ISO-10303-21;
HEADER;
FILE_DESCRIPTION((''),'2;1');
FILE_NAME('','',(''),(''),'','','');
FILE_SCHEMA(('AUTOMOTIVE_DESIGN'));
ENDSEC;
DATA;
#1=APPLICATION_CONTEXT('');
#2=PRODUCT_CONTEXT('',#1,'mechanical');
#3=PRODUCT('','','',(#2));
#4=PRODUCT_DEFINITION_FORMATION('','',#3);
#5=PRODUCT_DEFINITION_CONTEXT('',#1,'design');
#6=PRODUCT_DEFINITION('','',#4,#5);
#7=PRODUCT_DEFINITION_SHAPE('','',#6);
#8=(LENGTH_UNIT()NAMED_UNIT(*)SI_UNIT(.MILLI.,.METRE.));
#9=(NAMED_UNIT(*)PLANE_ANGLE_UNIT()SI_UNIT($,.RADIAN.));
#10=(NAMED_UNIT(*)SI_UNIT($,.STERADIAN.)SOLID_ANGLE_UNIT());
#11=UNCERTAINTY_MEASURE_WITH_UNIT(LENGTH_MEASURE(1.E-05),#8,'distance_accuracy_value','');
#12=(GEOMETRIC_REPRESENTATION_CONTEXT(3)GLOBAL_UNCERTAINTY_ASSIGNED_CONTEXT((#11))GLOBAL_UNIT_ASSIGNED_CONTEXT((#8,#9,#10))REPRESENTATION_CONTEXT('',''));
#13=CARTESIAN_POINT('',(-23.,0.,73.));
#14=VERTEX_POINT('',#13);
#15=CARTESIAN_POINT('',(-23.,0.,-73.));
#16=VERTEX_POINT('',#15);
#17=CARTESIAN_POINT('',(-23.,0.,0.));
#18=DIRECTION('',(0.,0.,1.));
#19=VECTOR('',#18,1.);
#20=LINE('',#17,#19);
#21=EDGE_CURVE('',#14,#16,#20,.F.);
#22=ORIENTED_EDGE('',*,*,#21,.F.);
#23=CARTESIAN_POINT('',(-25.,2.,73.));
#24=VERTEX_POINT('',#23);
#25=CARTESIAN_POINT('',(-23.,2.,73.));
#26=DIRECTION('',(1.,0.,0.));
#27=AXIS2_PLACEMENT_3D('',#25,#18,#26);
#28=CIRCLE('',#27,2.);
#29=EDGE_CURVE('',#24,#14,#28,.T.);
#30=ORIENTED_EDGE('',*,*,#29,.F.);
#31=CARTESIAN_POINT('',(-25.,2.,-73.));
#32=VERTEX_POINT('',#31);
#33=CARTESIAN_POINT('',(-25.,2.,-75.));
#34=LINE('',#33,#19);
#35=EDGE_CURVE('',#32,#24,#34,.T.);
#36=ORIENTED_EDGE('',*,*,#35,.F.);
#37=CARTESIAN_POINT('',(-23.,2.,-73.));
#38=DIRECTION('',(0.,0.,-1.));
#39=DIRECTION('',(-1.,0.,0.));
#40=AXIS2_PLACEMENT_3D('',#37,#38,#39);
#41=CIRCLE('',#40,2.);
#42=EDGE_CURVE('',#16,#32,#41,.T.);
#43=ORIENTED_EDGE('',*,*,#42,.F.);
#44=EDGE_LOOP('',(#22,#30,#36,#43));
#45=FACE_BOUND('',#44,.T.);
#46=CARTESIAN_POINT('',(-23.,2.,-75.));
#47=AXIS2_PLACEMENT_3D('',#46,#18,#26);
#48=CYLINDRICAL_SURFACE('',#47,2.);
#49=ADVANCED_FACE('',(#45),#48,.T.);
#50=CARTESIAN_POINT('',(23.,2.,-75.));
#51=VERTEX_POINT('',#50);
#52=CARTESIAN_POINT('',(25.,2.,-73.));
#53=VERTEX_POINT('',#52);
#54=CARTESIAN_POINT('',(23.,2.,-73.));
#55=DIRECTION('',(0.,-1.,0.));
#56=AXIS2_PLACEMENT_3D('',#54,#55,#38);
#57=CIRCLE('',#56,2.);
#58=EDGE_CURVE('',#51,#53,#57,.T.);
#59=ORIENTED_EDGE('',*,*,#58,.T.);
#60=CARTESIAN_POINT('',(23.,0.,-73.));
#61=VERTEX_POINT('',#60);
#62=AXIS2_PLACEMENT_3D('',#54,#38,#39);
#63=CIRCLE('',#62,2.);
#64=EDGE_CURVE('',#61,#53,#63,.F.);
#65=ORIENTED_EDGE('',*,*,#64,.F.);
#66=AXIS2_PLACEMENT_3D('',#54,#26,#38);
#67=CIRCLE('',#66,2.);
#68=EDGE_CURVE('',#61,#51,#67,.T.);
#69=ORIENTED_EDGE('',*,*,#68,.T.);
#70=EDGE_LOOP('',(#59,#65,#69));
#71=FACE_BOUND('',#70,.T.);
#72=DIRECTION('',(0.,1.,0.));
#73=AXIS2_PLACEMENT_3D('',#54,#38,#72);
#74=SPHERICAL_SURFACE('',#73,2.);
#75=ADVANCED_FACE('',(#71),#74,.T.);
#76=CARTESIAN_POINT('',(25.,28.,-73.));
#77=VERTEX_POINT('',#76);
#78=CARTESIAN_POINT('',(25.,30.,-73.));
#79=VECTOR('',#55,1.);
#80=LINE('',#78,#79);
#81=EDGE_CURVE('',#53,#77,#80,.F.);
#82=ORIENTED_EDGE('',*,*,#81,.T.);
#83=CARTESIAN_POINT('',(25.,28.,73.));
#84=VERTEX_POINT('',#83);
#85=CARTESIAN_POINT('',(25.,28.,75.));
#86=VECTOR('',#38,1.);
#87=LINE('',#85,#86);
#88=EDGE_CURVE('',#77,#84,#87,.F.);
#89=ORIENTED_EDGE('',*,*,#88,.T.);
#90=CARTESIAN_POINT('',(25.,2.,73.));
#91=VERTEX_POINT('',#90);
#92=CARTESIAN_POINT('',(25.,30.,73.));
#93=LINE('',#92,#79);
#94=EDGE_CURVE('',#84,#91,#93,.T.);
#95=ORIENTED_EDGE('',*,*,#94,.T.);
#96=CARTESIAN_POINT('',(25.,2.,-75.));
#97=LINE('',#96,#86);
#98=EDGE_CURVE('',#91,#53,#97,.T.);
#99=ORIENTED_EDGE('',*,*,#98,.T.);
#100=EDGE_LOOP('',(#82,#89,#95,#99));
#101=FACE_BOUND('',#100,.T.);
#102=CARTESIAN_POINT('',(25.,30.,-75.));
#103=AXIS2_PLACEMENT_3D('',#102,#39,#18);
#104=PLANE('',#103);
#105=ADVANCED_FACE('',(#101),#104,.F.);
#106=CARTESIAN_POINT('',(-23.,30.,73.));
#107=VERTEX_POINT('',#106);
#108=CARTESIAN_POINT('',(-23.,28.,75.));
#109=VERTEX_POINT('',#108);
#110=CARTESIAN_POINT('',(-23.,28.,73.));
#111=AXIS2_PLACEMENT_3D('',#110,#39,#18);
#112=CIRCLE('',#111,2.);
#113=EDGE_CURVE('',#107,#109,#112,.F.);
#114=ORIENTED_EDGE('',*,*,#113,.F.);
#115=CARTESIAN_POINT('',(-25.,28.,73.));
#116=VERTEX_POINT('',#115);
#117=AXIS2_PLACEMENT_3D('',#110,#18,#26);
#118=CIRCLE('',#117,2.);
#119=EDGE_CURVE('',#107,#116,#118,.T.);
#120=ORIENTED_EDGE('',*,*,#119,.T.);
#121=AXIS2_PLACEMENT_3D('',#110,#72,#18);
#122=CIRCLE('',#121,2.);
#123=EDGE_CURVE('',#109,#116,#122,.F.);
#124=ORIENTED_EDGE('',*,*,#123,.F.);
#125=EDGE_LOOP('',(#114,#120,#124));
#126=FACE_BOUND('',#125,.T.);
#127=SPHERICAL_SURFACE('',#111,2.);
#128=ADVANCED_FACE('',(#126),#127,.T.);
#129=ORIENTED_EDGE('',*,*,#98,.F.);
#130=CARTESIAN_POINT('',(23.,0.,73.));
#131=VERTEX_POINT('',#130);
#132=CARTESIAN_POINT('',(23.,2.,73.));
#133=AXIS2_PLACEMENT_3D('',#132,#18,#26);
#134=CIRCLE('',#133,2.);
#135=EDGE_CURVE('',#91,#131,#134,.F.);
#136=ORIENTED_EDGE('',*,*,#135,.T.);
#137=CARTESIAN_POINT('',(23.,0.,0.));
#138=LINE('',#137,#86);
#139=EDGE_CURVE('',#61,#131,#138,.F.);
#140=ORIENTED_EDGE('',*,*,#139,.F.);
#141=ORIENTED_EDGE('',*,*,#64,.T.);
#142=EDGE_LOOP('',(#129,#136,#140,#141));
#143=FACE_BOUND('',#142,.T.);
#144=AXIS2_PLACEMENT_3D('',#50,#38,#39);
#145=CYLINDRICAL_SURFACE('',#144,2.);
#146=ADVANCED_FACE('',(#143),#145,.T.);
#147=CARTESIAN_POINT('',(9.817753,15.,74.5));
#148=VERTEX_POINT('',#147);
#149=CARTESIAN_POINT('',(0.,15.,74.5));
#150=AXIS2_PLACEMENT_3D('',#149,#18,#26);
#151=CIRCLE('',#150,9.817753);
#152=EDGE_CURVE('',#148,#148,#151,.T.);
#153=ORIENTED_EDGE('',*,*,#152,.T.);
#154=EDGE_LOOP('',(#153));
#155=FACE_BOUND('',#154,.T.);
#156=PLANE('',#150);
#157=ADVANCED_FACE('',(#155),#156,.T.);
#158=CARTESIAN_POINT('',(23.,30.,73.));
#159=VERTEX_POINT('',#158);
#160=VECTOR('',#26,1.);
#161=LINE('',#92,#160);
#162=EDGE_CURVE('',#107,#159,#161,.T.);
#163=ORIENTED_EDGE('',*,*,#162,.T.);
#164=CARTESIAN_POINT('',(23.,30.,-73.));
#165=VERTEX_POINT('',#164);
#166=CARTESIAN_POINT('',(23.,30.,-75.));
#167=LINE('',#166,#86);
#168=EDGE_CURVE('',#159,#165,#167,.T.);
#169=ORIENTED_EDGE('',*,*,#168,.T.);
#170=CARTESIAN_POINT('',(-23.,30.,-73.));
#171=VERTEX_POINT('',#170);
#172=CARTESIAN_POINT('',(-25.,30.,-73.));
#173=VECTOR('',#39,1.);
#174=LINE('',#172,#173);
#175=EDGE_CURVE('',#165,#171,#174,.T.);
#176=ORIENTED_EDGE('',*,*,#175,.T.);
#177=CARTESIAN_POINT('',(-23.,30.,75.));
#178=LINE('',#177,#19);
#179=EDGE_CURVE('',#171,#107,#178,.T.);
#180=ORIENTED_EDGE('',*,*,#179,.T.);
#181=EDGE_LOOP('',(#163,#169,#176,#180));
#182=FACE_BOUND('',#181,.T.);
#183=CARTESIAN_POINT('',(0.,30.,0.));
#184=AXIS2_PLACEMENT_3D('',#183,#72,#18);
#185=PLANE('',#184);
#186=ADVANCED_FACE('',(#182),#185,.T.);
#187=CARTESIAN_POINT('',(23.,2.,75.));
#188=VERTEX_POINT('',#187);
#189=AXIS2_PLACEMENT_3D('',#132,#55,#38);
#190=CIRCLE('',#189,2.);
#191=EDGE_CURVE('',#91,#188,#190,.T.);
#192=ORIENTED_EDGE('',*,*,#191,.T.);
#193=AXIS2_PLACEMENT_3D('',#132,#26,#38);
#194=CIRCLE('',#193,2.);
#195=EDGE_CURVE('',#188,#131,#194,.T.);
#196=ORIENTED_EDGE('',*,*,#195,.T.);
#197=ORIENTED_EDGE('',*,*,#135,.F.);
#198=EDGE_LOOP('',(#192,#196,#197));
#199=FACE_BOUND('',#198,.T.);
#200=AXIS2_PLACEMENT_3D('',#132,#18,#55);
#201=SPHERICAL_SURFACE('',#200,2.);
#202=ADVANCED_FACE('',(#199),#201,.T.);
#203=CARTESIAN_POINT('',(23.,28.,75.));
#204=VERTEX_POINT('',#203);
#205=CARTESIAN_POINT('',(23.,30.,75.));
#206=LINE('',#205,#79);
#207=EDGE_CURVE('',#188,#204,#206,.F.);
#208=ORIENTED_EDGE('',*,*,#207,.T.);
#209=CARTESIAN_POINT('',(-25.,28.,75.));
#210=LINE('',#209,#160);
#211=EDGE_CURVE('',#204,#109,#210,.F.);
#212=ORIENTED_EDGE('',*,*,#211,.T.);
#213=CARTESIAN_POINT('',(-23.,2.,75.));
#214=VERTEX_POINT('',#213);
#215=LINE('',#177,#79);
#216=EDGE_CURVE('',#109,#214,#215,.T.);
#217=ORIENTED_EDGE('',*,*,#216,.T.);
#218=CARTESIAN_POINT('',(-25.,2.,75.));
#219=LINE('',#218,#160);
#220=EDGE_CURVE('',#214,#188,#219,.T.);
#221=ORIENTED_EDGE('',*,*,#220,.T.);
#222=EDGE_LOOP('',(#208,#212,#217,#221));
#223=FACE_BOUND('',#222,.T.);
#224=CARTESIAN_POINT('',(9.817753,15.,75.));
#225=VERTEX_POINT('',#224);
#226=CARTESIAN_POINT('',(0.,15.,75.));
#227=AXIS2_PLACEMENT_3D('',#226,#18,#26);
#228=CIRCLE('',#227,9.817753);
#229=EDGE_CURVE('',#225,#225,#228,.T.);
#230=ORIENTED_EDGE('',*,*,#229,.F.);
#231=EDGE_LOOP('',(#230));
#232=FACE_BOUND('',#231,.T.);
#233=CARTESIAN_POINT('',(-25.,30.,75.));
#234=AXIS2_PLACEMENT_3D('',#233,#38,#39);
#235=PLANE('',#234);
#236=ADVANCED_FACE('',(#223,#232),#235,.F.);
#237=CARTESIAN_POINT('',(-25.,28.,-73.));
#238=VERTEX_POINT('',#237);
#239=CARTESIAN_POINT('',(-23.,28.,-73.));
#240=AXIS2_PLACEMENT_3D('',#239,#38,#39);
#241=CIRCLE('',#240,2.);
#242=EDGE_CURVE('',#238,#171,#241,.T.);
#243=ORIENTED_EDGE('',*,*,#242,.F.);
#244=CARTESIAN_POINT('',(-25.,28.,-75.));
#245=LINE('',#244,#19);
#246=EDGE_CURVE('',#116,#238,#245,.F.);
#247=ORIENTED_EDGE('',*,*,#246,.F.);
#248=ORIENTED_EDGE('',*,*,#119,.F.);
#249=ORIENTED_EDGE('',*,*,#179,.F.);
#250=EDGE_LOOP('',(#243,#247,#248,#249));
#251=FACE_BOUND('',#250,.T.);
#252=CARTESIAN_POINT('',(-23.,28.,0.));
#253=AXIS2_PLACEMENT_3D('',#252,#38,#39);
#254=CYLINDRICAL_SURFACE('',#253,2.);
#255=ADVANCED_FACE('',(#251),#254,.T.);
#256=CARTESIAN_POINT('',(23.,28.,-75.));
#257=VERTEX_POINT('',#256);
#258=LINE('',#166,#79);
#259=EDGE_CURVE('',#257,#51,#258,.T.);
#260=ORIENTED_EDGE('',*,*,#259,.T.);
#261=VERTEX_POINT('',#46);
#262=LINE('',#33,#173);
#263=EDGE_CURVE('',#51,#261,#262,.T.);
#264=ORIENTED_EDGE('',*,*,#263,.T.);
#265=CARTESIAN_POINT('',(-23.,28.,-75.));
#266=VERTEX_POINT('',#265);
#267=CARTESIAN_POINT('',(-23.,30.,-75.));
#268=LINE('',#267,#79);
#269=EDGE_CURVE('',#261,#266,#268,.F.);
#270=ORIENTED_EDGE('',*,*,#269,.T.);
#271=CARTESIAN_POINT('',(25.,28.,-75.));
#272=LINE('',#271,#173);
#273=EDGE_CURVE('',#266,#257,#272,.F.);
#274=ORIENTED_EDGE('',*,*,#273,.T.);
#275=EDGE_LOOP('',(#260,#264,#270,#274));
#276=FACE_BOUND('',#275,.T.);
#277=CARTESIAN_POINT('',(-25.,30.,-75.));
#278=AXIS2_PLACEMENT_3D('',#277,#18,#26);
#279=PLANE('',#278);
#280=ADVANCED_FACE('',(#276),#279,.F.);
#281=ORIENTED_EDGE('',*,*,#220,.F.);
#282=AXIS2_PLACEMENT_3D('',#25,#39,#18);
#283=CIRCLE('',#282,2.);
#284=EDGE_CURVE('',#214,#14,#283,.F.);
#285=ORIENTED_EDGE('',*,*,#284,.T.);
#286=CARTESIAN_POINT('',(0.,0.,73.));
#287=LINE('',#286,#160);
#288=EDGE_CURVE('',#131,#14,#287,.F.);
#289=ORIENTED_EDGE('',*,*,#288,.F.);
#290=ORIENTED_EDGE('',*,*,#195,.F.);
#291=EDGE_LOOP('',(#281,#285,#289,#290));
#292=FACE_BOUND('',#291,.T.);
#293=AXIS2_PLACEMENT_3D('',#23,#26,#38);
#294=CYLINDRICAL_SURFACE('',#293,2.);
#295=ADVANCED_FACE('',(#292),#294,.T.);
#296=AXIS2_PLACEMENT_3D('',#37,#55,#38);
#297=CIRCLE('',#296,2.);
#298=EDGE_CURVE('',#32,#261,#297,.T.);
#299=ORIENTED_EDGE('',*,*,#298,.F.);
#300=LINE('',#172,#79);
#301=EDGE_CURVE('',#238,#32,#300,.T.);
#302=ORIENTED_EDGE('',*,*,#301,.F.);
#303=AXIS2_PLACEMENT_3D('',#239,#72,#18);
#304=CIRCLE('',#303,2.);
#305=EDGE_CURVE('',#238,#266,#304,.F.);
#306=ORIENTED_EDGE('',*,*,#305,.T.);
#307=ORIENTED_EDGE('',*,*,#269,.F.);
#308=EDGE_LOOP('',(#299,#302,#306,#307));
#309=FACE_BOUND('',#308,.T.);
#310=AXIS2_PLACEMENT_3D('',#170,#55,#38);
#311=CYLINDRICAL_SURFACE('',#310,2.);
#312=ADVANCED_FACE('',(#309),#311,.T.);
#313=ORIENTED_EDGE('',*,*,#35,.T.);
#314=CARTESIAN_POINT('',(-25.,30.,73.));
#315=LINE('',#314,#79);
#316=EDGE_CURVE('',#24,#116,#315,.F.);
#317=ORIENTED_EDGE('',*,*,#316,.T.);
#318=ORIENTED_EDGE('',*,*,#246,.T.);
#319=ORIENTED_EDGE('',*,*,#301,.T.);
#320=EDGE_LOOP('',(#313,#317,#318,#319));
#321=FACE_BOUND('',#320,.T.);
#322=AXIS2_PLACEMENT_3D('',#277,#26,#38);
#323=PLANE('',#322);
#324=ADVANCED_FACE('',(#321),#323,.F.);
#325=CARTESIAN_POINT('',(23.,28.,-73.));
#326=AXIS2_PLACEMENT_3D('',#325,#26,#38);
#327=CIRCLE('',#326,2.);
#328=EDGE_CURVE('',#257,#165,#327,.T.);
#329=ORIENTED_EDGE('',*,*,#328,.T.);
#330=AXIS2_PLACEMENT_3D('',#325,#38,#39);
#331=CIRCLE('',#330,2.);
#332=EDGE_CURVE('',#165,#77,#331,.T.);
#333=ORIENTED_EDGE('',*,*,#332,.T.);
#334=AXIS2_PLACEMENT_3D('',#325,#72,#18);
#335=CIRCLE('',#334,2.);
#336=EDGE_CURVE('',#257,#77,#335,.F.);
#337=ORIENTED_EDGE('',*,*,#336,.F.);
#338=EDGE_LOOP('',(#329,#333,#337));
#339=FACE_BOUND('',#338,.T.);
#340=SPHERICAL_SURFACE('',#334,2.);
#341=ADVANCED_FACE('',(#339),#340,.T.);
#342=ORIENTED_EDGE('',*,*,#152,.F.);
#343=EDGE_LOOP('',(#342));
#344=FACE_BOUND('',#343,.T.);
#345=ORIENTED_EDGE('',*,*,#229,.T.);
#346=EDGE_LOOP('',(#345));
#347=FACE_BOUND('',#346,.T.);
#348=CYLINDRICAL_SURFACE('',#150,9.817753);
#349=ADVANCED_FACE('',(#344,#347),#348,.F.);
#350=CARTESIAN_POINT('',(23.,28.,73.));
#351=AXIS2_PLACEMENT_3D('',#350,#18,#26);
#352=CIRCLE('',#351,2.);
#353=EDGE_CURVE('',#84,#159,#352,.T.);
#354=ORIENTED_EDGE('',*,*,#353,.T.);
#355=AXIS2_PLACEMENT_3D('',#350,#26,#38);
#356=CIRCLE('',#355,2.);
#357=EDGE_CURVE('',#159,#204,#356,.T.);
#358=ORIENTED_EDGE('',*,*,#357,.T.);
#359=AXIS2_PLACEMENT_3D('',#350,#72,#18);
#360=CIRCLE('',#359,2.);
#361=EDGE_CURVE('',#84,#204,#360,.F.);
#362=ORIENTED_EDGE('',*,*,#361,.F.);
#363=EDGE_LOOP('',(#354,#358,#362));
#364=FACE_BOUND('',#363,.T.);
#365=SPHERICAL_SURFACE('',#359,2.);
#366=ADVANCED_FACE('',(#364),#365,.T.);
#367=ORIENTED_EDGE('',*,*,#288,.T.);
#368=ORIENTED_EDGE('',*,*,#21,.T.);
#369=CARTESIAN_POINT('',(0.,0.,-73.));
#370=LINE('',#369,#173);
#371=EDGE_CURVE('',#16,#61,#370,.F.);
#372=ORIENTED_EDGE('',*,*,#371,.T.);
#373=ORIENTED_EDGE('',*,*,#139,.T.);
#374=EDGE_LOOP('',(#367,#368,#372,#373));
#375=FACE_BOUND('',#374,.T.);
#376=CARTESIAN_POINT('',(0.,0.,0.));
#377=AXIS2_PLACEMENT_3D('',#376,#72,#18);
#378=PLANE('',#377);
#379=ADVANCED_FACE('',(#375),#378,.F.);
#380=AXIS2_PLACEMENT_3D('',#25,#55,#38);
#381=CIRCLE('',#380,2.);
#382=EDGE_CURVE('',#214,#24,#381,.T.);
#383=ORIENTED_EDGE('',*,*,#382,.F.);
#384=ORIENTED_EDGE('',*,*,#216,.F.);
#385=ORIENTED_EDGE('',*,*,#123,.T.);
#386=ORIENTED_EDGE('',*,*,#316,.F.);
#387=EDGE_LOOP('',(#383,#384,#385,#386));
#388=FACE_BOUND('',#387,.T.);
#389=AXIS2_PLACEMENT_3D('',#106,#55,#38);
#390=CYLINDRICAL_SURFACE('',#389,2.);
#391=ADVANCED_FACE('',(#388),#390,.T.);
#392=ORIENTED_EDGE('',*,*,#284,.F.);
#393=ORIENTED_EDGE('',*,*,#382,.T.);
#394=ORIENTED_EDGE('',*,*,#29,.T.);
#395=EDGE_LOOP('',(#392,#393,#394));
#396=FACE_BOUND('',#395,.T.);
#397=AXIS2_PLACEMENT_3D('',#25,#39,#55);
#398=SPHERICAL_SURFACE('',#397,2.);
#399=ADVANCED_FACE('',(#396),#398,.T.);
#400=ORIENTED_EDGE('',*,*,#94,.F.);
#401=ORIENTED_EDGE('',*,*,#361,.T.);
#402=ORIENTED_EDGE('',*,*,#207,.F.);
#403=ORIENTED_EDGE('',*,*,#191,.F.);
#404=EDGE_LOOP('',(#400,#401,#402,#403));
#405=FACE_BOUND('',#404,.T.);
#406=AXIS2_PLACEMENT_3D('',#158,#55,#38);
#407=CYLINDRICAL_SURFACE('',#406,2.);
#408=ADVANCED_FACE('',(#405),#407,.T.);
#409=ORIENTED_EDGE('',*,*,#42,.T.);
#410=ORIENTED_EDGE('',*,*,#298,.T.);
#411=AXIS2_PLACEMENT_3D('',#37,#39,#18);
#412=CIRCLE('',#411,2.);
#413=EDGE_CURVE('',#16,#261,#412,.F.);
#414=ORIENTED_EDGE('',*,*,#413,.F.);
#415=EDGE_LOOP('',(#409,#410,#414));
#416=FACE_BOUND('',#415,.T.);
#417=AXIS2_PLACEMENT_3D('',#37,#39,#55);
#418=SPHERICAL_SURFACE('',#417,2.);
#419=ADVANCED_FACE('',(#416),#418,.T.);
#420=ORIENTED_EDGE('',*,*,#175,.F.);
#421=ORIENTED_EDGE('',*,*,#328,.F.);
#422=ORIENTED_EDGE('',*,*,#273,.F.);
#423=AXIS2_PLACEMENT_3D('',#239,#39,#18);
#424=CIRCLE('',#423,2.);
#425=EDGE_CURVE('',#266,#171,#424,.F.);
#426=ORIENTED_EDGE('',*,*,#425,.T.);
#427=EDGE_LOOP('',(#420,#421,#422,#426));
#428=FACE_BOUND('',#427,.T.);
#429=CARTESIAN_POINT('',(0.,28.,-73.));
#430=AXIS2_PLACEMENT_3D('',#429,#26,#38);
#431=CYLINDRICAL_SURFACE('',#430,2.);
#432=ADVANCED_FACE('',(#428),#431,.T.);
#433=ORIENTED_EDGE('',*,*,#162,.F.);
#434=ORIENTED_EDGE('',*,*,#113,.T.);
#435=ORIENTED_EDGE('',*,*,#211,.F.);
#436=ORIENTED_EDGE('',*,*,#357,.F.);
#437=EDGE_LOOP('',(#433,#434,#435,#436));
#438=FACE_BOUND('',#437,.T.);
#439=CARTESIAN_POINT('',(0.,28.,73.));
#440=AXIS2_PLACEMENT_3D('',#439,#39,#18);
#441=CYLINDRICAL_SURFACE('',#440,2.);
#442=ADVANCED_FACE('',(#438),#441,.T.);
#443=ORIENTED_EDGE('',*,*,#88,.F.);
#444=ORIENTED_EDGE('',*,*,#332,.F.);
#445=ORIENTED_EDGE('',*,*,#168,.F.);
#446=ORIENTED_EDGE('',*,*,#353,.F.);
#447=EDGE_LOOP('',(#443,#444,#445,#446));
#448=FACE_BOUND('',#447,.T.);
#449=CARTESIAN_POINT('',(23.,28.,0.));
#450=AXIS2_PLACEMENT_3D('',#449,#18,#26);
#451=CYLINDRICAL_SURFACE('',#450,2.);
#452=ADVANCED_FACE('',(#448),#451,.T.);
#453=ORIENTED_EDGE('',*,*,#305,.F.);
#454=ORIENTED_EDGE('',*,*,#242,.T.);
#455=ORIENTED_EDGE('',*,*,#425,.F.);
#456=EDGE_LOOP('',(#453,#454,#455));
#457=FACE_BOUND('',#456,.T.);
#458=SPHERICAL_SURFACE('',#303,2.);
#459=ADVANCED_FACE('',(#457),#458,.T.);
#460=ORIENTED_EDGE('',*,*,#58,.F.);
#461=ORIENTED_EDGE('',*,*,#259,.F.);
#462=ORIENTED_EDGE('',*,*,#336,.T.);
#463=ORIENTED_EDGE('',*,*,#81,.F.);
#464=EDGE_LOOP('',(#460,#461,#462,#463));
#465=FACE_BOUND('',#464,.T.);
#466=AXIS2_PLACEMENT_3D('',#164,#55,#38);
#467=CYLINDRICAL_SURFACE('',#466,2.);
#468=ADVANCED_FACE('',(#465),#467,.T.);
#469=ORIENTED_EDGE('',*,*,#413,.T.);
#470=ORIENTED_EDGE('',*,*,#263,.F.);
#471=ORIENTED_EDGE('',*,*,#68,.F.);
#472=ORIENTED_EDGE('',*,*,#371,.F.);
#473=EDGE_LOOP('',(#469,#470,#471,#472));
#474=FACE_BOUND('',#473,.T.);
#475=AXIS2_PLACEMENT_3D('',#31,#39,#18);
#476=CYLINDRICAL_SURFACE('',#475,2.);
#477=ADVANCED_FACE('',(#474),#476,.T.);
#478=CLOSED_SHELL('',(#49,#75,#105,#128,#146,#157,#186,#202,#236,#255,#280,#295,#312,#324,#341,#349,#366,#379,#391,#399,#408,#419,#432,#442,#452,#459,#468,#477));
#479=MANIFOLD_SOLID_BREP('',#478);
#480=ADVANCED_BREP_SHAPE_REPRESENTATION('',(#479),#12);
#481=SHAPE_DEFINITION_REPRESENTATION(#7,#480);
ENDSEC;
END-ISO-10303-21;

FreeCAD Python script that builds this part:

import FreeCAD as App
import Part
import Sketcher
from FreeCAD import Vector


def add_polygon(sketch, points):
    """Adds a closed chain of lines whose ends are joined by coincident constraints."""
    first, n = sketch.GeometryCount, len(points)
    for a, b in zip(points, points[1:] + points[:1]):
        sketch.addGeometry(Part.LineSegment(App.Vector(*a, 0), App.Vector(*b, 0)), False)
    for i in range(n):
        sketch.addConstraint(Sketcher.Constraint("Coincident", first + i, 2, first + (i + 1) % n, 1))

doc = App.newDocument("Part")
body = doc.addObject("PartDesign::Body", "Body")

sketch1 = body.newObject("Sketcher::SketchObject", "Sketch")
sketch1.AttachmentSupport = (doc.getObject("XZ_Plane"), [""])
sketch1.MapMode = "FlatFace"
add_polygon(sketch1, [(-25, -75), (-25, 75), (25, 75), (25, -75)])
sketch1.addConstraint([
    Sketcher.Constraint("Vertical", 0),
    Sketcher.Constraint("Horizontal", 1),
    Sketcher.Constraint("Vertical", 2),
    Sketcher.Constraint("Horizontal", 3),
    Sketcher.Constraint("Symmetric", 0, 2, 2, 2, -1, 1),
    Sketcher.Constraint("DistanceX", 1, 1, 1, 2, 50.0),
    Sketcher.Constraint("DistanceY", 0, 1, 0, 2, 150.0),
])
pad1 = body.newObject("PartDesign::Pad", "Pad")
pad1.Profile = sketch1
pad1.Length = 30
pad1.Reversed = True
doc.recompute()

fillet = body.newObject("PartDesign::Fillet", "Fillet")
fillet.Base = (pad1, ["Edge1"])
fillet.UseAllEdges = True
fillet.Radius = 2

sketch2 = body.newObject("Sketcher::SketchObject", "Sketch001")
sketch2.AttachmentSupport = (doc.getObject("XY_Plane"), [""])
sketch2.MapMode = "FlatFace"
sketch2.AttachmentOffset = App.Placement(Vector(0, 0, 75), App.Rotation())
sketch2.addGeometry(Part.Circle(Vector(0, 15, 0), Vector(0, 0, 1), 9.817753), False)
sketch2.addConstraint([
    Sketcher.Constraint("PointOnObject", 0, 3, -2),
    Sketcher.Constraint("DistanceY", -1, 1, 0, 3, 15.0),
    Sketcher.Constraint("Diameter", 0, 19.635506),
])
pocket1 = body.newObject("PartDesign::Pocket", "Pocket")
pocket1.Profile = sketch2
pocket1.Length = 0.5

doc.recompute()
